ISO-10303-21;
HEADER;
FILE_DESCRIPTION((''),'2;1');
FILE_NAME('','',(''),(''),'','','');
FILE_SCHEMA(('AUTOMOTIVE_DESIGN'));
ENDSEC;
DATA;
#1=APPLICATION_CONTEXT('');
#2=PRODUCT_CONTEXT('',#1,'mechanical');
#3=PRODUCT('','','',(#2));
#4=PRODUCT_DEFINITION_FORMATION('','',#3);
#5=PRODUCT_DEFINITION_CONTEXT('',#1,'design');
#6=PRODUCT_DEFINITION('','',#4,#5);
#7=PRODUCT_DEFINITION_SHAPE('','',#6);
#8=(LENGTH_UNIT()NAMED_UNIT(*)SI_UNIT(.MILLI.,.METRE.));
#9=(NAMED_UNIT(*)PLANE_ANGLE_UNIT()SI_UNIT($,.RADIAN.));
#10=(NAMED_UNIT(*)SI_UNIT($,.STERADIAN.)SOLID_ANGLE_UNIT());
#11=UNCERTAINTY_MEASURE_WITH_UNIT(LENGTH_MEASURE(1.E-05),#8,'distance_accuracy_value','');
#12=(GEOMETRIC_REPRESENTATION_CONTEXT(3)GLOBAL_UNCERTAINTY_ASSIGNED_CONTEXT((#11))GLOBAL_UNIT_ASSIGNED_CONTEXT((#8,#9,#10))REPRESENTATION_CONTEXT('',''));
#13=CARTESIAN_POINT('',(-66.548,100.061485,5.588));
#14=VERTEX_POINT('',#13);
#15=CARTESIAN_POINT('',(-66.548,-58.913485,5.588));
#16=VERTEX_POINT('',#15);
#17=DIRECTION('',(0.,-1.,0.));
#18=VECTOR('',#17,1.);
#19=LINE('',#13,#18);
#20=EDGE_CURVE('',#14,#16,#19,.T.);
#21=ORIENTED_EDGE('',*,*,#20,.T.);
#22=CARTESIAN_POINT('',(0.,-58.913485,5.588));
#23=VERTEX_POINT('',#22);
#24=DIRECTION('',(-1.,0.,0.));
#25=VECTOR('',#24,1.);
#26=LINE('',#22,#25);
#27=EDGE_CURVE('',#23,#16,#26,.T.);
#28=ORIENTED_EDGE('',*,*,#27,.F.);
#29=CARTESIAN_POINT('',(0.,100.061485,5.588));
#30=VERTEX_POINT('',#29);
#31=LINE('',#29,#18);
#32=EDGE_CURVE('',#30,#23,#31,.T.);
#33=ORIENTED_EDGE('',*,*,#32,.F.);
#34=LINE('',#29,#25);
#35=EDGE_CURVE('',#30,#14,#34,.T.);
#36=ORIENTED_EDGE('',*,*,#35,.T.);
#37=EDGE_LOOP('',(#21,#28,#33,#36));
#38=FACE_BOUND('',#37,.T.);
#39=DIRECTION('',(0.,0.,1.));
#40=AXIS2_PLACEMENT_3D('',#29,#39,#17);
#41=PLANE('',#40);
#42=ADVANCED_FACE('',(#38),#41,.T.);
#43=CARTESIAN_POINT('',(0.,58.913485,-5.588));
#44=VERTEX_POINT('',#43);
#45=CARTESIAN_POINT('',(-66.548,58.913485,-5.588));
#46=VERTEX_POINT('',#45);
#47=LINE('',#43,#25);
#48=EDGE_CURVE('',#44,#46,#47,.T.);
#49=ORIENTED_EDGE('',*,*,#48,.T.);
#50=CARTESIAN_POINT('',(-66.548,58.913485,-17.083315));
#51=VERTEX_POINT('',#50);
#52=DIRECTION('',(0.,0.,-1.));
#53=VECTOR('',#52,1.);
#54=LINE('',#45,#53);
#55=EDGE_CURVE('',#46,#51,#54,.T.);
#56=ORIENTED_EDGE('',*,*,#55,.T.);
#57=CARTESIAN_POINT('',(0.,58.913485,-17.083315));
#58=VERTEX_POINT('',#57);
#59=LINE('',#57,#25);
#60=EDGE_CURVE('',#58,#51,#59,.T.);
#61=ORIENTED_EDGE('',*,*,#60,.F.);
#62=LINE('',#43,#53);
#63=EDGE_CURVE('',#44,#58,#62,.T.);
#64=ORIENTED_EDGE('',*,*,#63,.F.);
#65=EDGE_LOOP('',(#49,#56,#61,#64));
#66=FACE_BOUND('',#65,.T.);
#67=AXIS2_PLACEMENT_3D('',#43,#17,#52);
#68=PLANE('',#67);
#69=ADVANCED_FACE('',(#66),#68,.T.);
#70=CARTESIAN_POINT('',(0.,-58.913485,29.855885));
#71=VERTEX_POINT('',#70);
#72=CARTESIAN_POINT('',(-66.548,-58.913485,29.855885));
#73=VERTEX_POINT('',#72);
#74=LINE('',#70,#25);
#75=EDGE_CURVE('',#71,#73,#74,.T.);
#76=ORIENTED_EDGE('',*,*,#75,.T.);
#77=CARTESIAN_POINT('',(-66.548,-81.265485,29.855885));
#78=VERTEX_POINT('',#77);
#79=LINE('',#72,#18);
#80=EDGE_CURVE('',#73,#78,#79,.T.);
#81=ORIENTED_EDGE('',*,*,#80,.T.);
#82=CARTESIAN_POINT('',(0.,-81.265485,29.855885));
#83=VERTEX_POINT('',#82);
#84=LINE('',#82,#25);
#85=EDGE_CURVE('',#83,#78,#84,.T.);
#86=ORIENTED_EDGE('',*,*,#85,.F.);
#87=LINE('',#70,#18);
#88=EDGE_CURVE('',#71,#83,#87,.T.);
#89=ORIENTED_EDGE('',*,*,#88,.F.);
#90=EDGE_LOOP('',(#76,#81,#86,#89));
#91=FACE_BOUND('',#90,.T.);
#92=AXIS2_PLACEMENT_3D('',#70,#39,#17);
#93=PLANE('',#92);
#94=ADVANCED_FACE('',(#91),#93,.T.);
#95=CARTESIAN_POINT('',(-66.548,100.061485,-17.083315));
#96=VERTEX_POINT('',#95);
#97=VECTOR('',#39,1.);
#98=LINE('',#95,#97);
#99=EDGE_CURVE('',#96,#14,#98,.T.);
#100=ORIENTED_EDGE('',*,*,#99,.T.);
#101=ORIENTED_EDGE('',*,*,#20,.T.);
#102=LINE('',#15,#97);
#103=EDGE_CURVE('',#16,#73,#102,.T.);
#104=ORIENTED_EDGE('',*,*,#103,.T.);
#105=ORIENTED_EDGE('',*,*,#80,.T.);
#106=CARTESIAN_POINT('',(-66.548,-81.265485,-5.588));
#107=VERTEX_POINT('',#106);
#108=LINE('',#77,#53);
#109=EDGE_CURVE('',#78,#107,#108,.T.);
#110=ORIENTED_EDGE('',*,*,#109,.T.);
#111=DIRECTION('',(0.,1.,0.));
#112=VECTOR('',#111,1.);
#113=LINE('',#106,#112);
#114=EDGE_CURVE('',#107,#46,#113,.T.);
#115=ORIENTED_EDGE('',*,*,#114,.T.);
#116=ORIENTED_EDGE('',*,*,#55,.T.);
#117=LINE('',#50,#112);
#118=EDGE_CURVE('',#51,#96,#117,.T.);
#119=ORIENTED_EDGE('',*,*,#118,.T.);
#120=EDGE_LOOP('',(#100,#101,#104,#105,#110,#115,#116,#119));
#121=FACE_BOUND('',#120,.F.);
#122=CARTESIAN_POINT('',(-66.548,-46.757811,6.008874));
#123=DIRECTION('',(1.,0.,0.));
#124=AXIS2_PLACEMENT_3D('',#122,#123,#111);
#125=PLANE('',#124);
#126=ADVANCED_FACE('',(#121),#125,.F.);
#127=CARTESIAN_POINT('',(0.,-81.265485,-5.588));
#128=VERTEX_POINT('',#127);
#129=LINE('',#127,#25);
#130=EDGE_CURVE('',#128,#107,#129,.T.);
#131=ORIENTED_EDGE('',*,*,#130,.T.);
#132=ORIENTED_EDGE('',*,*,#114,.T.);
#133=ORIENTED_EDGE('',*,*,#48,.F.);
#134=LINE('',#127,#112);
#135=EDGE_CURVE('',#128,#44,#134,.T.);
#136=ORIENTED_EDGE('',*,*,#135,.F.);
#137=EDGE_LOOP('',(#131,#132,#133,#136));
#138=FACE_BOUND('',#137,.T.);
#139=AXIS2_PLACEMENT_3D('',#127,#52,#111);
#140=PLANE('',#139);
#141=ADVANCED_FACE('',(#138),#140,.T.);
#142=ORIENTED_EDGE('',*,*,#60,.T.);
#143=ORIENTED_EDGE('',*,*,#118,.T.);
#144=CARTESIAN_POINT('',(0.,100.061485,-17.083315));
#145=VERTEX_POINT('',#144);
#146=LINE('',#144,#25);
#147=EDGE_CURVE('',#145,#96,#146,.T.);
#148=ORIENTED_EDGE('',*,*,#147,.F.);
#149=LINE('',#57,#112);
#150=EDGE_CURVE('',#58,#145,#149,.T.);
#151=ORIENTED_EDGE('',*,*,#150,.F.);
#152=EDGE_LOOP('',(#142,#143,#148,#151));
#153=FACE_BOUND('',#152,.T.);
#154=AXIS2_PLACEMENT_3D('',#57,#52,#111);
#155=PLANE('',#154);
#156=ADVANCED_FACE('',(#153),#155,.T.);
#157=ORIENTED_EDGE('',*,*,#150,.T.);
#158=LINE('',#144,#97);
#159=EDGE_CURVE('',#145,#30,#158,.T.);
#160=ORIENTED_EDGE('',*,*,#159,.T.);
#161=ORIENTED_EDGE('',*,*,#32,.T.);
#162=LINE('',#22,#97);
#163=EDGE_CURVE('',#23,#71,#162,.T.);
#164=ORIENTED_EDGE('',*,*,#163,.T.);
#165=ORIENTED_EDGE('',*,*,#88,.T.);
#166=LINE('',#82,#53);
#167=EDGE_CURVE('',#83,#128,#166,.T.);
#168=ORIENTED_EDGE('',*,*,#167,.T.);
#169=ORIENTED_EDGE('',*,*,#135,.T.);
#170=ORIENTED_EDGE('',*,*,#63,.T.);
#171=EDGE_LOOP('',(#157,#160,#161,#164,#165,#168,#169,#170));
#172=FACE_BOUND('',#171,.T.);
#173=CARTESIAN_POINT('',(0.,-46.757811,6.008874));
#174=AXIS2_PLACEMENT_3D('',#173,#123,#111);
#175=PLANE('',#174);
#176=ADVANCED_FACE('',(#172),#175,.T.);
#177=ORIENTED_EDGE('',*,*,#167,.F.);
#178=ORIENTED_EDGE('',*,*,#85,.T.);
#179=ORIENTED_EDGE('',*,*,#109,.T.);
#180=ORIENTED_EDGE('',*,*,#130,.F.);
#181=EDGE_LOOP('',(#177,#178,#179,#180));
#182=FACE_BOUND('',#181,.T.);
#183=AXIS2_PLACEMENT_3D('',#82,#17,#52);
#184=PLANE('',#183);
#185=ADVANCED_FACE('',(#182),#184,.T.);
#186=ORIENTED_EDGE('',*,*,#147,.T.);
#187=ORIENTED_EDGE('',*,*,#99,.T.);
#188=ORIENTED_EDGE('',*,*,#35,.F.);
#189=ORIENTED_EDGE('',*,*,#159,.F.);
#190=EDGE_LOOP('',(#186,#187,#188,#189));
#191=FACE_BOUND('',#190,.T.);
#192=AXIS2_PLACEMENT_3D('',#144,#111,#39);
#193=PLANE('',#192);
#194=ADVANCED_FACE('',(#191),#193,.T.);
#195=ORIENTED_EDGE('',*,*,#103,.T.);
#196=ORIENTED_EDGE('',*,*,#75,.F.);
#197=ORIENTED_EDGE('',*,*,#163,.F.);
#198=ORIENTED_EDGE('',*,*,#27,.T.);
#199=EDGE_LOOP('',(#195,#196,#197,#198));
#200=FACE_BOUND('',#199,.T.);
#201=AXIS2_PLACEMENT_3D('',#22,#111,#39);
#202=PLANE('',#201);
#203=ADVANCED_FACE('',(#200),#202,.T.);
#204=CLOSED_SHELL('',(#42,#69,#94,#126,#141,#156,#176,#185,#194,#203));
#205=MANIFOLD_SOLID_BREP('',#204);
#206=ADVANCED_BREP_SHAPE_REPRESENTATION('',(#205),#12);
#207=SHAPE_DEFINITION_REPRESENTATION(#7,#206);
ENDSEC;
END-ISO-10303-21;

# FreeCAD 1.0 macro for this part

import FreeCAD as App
import Part
import Sketcher
Q = App.Units.Quantity


def add_polygon(sketch, points):
    """Adds a closed chain of lines whose ends are joined by coincident constraints."""
    first, n = sketch.GeometryCount, len(points)
    for a, b in zip(points, points[1:] + points[:1]):
        sketch.addGeometry(Part.LineSegment(App.Vector(*a, 0), App.Vector(*b, 0)), False)
    for i in range(n):
        sketch.addConstraint(Sketcher.Constraint("Coincident", first + i, 2, first + (i + 1) % n, 1))

doc = App.newDocument("Part")
body = doc.addObject("PartDesign::Body", "Body")

# Sketch on YZ plane
sketch1 = body.newObject("Sketcher::SketchObject", "Sketch")
sketch1.AttachmentSupport = (doc.getObject("YZ_Plane"), [""])
sketch1.MapMode = "FlatFace"
add_polygon(sketch1, [(-59, 6), (-59, 30), (-81, 30), (-81, -6), (59, -6), (59, -17), (100, -17), (100, 6)])  # lines 0-7
sketch1.addConstraint(Sketcher.Constraint("Vertical", 0))
sketch1.addConstraint(Sketcher.Constraint("Horizontal", 1))
sketch1.addConstraint(Sketcher.Constraint("Vertical", 2))
sketch1.addConstraint(Sketcher.Constraint("Horizontal", 3))
sketch1.addConstraint(Sketcher.Constraint("Vertical", 4))
sketch1.addConstraint(Sketcher.Constraint("Horizontal", 5))
sketch1.addConstraint(Sketcher.Constraint("Vertical", 6))
sketch1.addConstraint(Sketcher.Constraint("Horizontal", 7))
sketch1.addConstraint(Sketcher.Constraint("Symmetric", 3, 2, 7, 2, -1, 1))
sketch1.addConstraint(Sketcher.Constraint("DistanceX", 1, 2, 1, 1, Q("0.88 in")))
sketch1.addConstraint(Sketcher.Constraint("DistanceX", 5, 1, 5, 2, Q("1.62 in")))
sketch1.addConstraint(Sketcher.Constraint("DistanceY", 2, 2, -1, 1, Q("0.22 in")))
sketch1.addConstraint(Sketcher.Constraint("DistanceY", 4, 2, 0, 2, Q("1.848 in")))
sketch1.addConstraint(Sketcher.Constraint("DistanceX", 3, 1, 3, 2, 140.17897))
sketch1.addConstraint(Sketcher.Constraint("DistanceY", 0, 1, 0, 2, 24.267885))
pad1 = body.newObject("PartDesign::Pad", "Pad")
pad1.Profile = sketch1
pad1.Length = Q("2.62 in")
pad1.Reversed = True

doc.recompute()
